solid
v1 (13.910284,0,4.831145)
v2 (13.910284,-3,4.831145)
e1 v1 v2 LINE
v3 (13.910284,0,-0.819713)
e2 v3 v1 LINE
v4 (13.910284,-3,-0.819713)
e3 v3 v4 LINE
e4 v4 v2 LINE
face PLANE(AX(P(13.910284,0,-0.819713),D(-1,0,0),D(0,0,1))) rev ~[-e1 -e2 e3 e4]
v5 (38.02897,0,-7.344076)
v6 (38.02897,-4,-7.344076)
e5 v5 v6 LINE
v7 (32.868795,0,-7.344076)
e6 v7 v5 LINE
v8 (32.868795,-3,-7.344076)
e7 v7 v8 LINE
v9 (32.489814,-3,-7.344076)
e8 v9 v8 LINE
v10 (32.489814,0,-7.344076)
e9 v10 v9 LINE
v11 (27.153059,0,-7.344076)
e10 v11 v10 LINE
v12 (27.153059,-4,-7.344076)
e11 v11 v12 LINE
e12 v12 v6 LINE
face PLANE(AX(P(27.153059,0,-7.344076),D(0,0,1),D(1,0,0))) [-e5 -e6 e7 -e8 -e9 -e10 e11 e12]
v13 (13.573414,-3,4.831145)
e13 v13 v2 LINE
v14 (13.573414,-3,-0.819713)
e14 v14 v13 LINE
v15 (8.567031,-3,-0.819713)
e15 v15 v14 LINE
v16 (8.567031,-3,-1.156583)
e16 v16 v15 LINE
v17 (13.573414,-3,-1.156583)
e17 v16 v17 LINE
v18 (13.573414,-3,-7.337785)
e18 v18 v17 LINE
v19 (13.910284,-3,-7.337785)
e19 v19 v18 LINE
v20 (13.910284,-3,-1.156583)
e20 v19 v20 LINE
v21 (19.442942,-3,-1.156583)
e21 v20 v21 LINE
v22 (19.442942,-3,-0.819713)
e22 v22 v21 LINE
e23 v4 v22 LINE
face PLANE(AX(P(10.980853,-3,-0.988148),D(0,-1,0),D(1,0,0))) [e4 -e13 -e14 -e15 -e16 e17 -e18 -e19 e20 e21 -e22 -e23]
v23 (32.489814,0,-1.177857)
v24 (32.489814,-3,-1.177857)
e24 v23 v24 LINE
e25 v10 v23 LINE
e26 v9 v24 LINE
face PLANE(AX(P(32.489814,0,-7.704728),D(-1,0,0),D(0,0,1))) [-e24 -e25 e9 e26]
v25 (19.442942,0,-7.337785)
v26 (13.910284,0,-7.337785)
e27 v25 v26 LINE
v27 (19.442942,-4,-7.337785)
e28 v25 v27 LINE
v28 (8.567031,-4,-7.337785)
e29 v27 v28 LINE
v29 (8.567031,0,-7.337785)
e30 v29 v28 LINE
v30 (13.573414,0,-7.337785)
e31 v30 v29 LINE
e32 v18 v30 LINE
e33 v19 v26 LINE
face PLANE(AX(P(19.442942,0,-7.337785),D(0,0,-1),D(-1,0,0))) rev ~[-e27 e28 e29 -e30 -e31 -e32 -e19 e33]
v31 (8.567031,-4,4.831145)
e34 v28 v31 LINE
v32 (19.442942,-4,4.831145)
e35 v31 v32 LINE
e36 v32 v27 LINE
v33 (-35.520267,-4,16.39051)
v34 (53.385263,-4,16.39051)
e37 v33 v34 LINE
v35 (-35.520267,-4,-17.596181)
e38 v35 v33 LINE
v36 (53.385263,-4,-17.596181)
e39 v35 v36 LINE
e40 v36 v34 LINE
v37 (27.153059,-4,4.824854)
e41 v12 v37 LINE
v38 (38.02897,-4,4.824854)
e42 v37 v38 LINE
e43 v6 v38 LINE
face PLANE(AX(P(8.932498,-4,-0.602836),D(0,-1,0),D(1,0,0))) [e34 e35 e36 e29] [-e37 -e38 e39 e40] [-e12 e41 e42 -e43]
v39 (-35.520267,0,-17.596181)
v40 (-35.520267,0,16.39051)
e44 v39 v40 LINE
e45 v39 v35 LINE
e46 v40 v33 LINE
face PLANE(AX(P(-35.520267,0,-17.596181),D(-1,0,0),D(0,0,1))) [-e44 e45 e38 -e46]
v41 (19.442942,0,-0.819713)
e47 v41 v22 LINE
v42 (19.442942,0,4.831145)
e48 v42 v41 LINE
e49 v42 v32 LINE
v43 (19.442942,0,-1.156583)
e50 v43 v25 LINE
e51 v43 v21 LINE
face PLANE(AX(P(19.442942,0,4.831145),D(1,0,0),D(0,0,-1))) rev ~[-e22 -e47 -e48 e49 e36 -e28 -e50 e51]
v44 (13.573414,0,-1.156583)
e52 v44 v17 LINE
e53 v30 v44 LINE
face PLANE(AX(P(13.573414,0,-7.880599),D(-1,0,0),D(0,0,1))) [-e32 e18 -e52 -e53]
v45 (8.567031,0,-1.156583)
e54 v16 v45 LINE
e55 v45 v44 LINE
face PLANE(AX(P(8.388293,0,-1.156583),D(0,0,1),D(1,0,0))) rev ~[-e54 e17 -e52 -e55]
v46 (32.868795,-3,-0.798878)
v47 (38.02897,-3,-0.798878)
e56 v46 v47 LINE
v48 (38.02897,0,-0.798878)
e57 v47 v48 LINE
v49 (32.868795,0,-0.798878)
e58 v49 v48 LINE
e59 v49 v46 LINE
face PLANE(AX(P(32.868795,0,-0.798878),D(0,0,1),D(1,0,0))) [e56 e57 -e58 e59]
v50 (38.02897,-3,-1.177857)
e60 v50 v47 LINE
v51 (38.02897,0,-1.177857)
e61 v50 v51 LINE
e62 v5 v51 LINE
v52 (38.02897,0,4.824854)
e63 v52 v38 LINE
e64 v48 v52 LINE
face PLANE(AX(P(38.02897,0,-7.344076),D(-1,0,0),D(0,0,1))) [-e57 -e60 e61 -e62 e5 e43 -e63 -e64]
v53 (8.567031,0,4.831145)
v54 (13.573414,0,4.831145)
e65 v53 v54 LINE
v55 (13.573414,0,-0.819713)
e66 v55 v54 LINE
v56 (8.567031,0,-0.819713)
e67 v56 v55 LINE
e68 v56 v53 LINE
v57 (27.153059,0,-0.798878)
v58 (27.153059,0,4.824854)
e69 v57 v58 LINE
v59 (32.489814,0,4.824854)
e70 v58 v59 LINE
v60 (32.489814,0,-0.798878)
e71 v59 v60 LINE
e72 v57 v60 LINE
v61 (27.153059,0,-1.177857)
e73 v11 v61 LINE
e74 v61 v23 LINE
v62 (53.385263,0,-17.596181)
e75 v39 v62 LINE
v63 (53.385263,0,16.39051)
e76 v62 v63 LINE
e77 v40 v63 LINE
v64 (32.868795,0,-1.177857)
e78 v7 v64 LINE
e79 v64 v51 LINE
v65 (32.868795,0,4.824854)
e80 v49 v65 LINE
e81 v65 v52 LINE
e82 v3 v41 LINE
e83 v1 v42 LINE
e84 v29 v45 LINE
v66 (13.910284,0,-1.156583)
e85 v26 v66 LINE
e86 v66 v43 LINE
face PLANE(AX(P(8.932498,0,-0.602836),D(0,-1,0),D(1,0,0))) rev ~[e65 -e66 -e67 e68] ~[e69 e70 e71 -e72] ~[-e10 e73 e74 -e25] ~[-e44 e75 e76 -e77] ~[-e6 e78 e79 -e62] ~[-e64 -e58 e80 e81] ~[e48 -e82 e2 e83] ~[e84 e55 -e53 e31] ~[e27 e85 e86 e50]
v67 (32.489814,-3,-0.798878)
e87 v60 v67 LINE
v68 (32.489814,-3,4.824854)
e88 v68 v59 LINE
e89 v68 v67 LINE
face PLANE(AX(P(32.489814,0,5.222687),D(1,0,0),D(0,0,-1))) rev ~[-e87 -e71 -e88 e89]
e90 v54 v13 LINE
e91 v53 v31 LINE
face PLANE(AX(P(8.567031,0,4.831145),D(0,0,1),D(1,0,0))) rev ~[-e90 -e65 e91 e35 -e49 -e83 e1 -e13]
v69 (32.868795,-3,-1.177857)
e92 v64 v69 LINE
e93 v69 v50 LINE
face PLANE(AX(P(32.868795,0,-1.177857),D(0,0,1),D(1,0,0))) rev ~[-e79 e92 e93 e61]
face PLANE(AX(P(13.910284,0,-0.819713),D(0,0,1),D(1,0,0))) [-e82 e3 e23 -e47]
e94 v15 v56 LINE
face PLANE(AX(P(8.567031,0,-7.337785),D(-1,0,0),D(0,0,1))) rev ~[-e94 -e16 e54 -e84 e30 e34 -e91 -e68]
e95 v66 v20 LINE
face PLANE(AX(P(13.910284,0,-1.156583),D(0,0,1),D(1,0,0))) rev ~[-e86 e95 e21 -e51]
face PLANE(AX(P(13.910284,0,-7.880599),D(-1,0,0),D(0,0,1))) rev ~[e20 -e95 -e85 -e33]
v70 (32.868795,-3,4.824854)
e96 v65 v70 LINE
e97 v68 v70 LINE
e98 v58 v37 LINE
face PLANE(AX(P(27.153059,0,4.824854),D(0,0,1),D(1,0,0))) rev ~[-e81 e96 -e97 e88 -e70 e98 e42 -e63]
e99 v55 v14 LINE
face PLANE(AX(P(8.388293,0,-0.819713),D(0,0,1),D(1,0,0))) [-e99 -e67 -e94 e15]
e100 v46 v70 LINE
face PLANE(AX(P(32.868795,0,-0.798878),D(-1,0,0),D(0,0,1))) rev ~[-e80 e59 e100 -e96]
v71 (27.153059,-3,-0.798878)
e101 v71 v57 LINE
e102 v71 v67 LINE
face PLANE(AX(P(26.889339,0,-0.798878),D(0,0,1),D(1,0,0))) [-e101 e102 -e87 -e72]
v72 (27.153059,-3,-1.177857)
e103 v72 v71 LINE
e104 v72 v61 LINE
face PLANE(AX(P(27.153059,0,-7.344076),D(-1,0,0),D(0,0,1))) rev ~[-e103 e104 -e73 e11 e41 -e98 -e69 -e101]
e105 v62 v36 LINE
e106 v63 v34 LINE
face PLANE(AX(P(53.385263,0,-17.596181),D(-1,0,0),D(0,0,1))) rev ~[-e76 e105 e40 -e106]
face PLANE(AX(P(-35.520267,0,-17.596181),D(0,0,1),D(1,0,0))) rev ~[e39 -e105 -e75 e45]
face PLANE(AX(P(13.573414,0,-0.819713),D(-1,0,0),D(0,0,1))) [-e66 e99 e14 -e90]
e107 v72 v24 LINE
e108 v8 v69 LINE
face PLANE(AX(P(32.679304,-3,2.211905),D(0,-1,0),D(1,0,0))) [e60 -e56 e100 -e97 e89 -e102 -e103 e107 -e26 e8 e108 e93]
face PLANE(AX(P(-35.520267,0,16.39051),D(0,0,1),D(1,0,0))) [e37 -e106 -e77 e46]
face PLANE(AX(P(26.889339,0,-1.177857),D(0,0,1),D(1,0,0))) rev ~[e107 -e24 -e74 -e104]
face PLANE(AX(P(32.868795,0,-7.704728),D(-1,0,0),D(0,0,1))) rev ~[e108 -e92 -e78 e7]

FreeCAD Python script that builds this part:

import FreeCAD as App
import Part
import Sketcher

V = App.Vector
Q = App.Units.Quantity


def add_polygon(sketch, points):
    """Adds a closed chain of lines whose ends are joined by coincident constraints."""
    first, n = sketch.GeometryCount, len(points)
    for a, b in zip(points, points[1:] + points[:1]):
        sketch.addGeometry(Part.LineSegment(App.Vector(*a, 0), App.Vector(*b, 0)), False)
    for i in range(n):
        sketch.addConstraint(Sketcher.Constraint("Coincident", first + i, 2, first + (i + 1) % n, 1))

doc = App.newDocument("Part")
body = doc.addObject("PartDesign::Body", "Body")

# Sketch on XZ plane
sketch1 = doc.addObject("Sketcher::SketchObject", "Sketch")
body.addObject(sketch1)
sketch1.AttachmentSupport = (doc.XZ_Plane, [""])
sketch1.MapMode = "FlatFace"
add_polygon(sketch1, [(-36, 16), (-36, -18), (53, -18), (53, 16)])  # lines 0-3
add_polygon(sketch1, [(38, -7), (27, -7), (27, 5), (38, 5)])  # lines 4-7
add_polygon(sketch1, [(19, -7), (9, -7), (9, 5), (19, 5)])  # lines 8-11
sketch1.addConstraint([
    Sketcher.Constraint("Vertical", 0),
    Sketcher.Constraint("Horizontal", 1),
    Sketcher.Constraint("Vertical", 2),
    Sketcher.Constraint("Horizontal", 3),
    Sketcher.Constraint("Horizontal", 4),
    Sketcher.Constraint("Vertical", 5),
    Sketcher.Constraint("Horizontal", 6),
    Sketcher.Constraint("Vertical", 7),
    Sketcher.Constraint("Horizontal", 8),
    Sketcher.Constraint("Vertical", 9),
    Sketcher.Constraint("Horizontal", 10),
    Sketcher.Constraint("Vertical", 11),
    Sketcher.Constraint("Equal", 6, 8),
    Sketcher.Constraint("Equal", 7, 9),
    Sketcher.Constraint("DistanceX", 1, 1, 1, 2, Q("88.90553 mm")),
    Sketcher.Constraint("DistanceX", 4, 2, 4, 1, Q("10.875911 mm")),
    Sketcher.Constraint("DistanceY", 0, 2, 0, 1, Q("33.986691 mm")),
    Sketcher.Constraint("DistanceY", 5, 1, 5, 2, Q("12.16893 mm")),
    Sketcher.Constraint("DistanceX", 0, 2, 8, 2, Q("44.087298 mm")),
    Sketcher.Constraint("DistanceY", 0, 2, -1, 1, Q("17.596181 mm")),
    Sketcher.Constraint("DistanceX", -1, 1, 4, 2, Q("27.153059 mm")),
    Sketcher.Constraint("DistanceX", -1, 1, 8, 2, Q("8.567031 mm")),
    Sketcher.Constraint("DistanceY", 4, 2, 8, 2, Q("0.006291 mm")),
    Sketcher.Constraint("DistanceY", 4, 2, -1, 1, Q("7.344076 mm")),
])
pad1 = doc.addObject("PartDesign::Pad", "Pad")
body.addObject(pad1)
pad1.Profile = sketch1
pad1.Length = 4

# Sketch on XZ plane
sketch2 = doc.addObject("Sketcher::SketchObject", "Sketch001")
body.addObject(sketch2)
sketch2.AttachmentSupport = (doc.XZ_Plane, [""])
sketch2.MapMode = "FlatFace"
add_polygon(sketch2, [(8.39, -0.82), (8.39, -1.16), (13.57, -1.16), (13.57, -7.88), (13.91, -7.88), (13.91, -1.16), (19.67, -1.16), (19.67, -0.82), (13.91, -0.82), (13.91, 5), (13.57, 5), (13.57, -0.82)])  # lines 0-11
add_polygon(sketch2, [(32.49, 5.22), (32.49, -0.8), (26.89, -0.8), (26.89, -1.18), (32.49, -1.18), (32.49, -7.7), (32.87, -7.7), (32.87, -1.18), (38.22, -1.18), (38.22, -0.8), (32.87, -0.8), (32.87, 5.22)])  # lines 12-23
sketch2.addConstraint([
    Sketcher.Constraint("Vertical", 0),
    Sketcher.Constraint("Horizontal", 1),
    Sketcher.Constraint("Vertical", 2),
    Sketcher.Constraint("Horizontal", 3),
    Sketcher.Constraint("Vertical", 4),
    Sketcher.Constraint("Horizontal", 5),
    Sketcher.Constraint("Vertical", 6),
    Sketcher.Constraint("Horizontal", 7),
    Sketcher.Constraint("Vertical", 8),
    Sketcher.Constraint("Horizontal", 9),
    Sketcher.Constraint("Vertical", 10),
    Sketcher.Constraint("Horizontal", 11),
    Sketcher.Constraint("Vertical", 12),
    Sketcher.Constraint("Horizontal", 13),
    Sketcher.Constraint("Vertical", 14),
    Sketcher.Constraint("Horizontal", 15),
    Sketcher.Constraint("Vertical", 16),
    Sketcher.Constraint("Horizontal", 17),
    Sketcher.Constraint("Vertical", 18),
    Sketcher.Constraint("Horizontal", 19),
    Sketcher.Constraint("Vertical", 20),
    Sketcher.Constraint("Horizontal", 21),
    Sketcher.Constraint("Vertical", 22),
    Sketcher.Constraint("Horizontal", 23),
    Sketcher.Constraint("Horizontal", 1, 2, 4, 2),
    Sketcher.Constraint("Horizontal", 7, 2, 10, 2),
    Sketcher.Constraint("Horizontal", 15, 2, 18, 2),
    Sketcher.Constraint("Horizontal", 13, 2, 20, 2),
    Sketcher.Constraint("Vertical", 4, 2, 7, 2),
    Sketcher.Constraint("Vertical", 2, 2, 9, 2),
    Sketcher.Constraint("Vertical", 12, 2, 15, 2),
    Sketcher.Constraint("Vertical", 18, 2, 21, 2),
    Sketcher.Constraint("Equal", 9, 0),
    Sketcher.Constraint("Equal", 23, 14),
    Sketcher.Constraint("DistanceX", 1, 1, 1, 2, Q("5.185121 mm")),
    Sketcher.Constraint("DistanceX", 3, 1, 3, 2, Q("0.336871 mm")),
    Sketcher.Constraint("DistanceX", 5, 1, 5, 2, Q("5.763179 mm")),
    Sketcher.Constraint("DistanceX", 17, 1, 17, 2, Q("0.378981 mm")),
    Sketcher.Constraint("DistanceX", 19, 1, 19, 2, Q("5.347822 mm")),
    Sketcher.Constraint("DistanceY", 8, 1, 8, 2, Q("5.824419 mm")),
    Sketcher.Constraint("DistanceY", 16, 2, 16, 1, Q("6.526871 mm")),
    Sketcher.Constraint("DistanceY", 2, 2, -1, 1, Q("7.880599 mm")),
    Sketcher.Constraint("DistanceX", 10, 2, 12, 2, Q("18.9164 mm")),
    Sketcher.Constraint("DistanceX", 13, 2, 13, 1, Q("5.600475 mm")),
    Sketcher.Constraint("DistanceY", 2, 2, 2, 1, Q("6.724016 mm")),
    Sketcher.Constraint("DistanceY", 12, 2, 12, 1, Q("6.021564 mm")),
    Sketcher.Constraint("DistanceX", -1, 1, 13, 2, Q("26.889339 mm")),
    Sketcher.Constraint("DistanceY", 12, 2, -1, 1, Q("0.798878 mm")),
])
pad2 = doc.addObject("PartDesign::Pad", "Pad001")
body.addObject(pad2)
pad2.Profile = sketch2
pad2.Length = 3

doc.recompute()
